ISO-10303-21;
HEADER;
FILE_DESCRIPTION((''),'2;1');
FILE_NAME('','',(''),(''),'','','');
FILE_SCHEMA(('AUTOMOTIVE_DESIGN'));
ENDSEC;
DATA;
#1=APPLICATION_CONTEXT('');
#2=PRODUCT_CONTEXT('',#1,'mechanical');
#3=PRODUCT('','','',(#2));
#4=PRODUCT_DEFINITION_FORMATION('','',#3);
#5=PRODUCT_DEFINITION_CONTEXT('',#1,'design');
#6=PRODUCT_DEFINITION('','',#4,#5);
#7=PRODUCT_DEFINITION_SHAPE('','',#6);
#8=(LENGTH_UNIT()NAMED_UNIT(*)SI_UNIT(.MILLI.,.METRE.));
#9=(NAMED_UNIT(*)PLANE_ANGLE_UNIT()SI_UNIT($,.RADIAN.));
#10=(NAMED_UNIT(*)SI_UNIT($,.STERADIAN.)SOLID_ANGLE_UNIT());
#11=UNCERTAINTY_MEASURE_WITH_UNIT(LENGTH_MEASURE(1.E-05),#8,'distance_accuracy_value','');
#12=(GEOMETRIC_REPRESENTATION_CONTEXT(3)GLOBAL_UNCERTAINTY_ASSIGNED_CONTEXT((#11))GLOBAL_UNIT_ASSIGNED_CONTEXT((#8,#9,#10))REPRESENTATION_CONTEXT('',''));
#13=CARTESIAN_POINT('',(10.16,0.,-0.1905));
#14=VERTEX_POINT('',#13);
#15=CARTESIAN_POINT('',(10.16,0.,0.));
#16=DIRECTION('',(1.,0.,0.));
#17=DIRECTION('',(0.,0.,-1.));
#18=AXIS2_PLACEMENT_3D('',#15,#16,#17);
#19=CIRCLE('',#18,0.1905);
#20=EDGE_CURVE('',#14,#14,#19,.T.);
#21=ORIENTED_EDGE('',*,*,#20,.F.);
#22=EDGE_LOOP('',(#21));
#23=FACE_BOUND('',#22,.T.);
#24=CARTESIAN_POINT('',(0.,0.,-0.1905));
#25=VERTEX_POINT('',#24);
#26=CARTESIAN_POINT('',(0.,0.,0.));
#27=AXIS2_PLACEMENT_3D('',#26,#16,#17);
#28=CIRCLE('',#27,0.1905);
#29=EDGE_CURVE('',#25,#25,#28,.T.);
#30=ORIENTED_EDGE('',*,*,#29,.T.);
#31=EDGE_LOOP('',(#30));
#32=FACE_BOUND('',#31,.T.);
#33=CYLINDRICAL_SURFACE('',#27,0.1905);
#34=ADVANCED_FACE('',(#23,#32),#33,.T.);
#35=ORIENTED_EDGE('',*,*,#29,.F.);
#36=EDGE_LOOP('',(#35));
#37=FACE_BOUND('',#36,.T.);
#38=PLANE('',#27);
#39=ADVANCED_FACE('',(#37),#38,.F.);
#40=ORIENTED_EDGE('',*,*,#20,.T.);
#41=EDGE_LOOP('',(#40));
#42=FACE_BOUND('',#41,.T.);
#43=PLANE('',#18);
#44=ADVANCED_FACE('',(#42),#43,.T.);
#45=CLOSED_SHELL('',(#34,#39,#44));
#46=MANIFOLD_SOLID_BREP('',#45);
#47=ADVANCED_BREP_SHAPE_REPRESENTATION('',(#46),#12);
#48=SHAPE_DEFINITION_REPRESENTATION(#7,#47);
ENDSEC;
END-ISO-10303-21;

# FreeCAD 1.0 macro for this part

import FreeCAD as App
import Part
import Sketcher

V = App.Vector
Q = App.Units.Quantity

doc = App.newDocument("Part")
body = doc.addObject("PartDesign::Body", "Body")

# Sketch on YZ plane
sketch1 = body.newObject("Sketcher::SketchObject", "Sketch")
sketch1.AttachmentSupport = (doc.getObject("YZ_Plane"), [""])
sketch1.MapMode = "FlatFace"
sketch1.addGeometry(Part.Circle(V(0, 0, 0), V(0, 0, 1), 0.19), False)
sketch1.addConstraint([
    Sketcher.Constraint("Coincident", 0, 3, -1, 1),
    Sketcher.Constraint("Diameter", 0, Q("0.015 in")),
])

# Sketch on XY plane
sketch2 = body.newObject("Sketcher::SketchObject", "Sketch001")
sketch2.AttachmentSupport = (doc.getObject("XY_Plane"), [""])
sketch2.MapMode = "FlatFace"
sketch2.addGeometry(Part.LineSegment(V(0, 0, 0), V(10, 0, 0)), False)
sketch2.addConstraint([
    Sketcher.Constraint("Horizontal", 0),
    Sketcher.Constraint("Coincident", 0, 1, -1, 1),
    Sketcher.Constraint("DistanceX", 0, 1, 0, 2, Q("0.4 in")),
])
doc.recompute()

additivepipe = body.newObject("PartDesign::AdditivePipe", "AdditivePipe")
additivepipe.Profile = sketch1
additivepipe.Spine = (sketch2, ["Edge1"])

doc.recompute()
